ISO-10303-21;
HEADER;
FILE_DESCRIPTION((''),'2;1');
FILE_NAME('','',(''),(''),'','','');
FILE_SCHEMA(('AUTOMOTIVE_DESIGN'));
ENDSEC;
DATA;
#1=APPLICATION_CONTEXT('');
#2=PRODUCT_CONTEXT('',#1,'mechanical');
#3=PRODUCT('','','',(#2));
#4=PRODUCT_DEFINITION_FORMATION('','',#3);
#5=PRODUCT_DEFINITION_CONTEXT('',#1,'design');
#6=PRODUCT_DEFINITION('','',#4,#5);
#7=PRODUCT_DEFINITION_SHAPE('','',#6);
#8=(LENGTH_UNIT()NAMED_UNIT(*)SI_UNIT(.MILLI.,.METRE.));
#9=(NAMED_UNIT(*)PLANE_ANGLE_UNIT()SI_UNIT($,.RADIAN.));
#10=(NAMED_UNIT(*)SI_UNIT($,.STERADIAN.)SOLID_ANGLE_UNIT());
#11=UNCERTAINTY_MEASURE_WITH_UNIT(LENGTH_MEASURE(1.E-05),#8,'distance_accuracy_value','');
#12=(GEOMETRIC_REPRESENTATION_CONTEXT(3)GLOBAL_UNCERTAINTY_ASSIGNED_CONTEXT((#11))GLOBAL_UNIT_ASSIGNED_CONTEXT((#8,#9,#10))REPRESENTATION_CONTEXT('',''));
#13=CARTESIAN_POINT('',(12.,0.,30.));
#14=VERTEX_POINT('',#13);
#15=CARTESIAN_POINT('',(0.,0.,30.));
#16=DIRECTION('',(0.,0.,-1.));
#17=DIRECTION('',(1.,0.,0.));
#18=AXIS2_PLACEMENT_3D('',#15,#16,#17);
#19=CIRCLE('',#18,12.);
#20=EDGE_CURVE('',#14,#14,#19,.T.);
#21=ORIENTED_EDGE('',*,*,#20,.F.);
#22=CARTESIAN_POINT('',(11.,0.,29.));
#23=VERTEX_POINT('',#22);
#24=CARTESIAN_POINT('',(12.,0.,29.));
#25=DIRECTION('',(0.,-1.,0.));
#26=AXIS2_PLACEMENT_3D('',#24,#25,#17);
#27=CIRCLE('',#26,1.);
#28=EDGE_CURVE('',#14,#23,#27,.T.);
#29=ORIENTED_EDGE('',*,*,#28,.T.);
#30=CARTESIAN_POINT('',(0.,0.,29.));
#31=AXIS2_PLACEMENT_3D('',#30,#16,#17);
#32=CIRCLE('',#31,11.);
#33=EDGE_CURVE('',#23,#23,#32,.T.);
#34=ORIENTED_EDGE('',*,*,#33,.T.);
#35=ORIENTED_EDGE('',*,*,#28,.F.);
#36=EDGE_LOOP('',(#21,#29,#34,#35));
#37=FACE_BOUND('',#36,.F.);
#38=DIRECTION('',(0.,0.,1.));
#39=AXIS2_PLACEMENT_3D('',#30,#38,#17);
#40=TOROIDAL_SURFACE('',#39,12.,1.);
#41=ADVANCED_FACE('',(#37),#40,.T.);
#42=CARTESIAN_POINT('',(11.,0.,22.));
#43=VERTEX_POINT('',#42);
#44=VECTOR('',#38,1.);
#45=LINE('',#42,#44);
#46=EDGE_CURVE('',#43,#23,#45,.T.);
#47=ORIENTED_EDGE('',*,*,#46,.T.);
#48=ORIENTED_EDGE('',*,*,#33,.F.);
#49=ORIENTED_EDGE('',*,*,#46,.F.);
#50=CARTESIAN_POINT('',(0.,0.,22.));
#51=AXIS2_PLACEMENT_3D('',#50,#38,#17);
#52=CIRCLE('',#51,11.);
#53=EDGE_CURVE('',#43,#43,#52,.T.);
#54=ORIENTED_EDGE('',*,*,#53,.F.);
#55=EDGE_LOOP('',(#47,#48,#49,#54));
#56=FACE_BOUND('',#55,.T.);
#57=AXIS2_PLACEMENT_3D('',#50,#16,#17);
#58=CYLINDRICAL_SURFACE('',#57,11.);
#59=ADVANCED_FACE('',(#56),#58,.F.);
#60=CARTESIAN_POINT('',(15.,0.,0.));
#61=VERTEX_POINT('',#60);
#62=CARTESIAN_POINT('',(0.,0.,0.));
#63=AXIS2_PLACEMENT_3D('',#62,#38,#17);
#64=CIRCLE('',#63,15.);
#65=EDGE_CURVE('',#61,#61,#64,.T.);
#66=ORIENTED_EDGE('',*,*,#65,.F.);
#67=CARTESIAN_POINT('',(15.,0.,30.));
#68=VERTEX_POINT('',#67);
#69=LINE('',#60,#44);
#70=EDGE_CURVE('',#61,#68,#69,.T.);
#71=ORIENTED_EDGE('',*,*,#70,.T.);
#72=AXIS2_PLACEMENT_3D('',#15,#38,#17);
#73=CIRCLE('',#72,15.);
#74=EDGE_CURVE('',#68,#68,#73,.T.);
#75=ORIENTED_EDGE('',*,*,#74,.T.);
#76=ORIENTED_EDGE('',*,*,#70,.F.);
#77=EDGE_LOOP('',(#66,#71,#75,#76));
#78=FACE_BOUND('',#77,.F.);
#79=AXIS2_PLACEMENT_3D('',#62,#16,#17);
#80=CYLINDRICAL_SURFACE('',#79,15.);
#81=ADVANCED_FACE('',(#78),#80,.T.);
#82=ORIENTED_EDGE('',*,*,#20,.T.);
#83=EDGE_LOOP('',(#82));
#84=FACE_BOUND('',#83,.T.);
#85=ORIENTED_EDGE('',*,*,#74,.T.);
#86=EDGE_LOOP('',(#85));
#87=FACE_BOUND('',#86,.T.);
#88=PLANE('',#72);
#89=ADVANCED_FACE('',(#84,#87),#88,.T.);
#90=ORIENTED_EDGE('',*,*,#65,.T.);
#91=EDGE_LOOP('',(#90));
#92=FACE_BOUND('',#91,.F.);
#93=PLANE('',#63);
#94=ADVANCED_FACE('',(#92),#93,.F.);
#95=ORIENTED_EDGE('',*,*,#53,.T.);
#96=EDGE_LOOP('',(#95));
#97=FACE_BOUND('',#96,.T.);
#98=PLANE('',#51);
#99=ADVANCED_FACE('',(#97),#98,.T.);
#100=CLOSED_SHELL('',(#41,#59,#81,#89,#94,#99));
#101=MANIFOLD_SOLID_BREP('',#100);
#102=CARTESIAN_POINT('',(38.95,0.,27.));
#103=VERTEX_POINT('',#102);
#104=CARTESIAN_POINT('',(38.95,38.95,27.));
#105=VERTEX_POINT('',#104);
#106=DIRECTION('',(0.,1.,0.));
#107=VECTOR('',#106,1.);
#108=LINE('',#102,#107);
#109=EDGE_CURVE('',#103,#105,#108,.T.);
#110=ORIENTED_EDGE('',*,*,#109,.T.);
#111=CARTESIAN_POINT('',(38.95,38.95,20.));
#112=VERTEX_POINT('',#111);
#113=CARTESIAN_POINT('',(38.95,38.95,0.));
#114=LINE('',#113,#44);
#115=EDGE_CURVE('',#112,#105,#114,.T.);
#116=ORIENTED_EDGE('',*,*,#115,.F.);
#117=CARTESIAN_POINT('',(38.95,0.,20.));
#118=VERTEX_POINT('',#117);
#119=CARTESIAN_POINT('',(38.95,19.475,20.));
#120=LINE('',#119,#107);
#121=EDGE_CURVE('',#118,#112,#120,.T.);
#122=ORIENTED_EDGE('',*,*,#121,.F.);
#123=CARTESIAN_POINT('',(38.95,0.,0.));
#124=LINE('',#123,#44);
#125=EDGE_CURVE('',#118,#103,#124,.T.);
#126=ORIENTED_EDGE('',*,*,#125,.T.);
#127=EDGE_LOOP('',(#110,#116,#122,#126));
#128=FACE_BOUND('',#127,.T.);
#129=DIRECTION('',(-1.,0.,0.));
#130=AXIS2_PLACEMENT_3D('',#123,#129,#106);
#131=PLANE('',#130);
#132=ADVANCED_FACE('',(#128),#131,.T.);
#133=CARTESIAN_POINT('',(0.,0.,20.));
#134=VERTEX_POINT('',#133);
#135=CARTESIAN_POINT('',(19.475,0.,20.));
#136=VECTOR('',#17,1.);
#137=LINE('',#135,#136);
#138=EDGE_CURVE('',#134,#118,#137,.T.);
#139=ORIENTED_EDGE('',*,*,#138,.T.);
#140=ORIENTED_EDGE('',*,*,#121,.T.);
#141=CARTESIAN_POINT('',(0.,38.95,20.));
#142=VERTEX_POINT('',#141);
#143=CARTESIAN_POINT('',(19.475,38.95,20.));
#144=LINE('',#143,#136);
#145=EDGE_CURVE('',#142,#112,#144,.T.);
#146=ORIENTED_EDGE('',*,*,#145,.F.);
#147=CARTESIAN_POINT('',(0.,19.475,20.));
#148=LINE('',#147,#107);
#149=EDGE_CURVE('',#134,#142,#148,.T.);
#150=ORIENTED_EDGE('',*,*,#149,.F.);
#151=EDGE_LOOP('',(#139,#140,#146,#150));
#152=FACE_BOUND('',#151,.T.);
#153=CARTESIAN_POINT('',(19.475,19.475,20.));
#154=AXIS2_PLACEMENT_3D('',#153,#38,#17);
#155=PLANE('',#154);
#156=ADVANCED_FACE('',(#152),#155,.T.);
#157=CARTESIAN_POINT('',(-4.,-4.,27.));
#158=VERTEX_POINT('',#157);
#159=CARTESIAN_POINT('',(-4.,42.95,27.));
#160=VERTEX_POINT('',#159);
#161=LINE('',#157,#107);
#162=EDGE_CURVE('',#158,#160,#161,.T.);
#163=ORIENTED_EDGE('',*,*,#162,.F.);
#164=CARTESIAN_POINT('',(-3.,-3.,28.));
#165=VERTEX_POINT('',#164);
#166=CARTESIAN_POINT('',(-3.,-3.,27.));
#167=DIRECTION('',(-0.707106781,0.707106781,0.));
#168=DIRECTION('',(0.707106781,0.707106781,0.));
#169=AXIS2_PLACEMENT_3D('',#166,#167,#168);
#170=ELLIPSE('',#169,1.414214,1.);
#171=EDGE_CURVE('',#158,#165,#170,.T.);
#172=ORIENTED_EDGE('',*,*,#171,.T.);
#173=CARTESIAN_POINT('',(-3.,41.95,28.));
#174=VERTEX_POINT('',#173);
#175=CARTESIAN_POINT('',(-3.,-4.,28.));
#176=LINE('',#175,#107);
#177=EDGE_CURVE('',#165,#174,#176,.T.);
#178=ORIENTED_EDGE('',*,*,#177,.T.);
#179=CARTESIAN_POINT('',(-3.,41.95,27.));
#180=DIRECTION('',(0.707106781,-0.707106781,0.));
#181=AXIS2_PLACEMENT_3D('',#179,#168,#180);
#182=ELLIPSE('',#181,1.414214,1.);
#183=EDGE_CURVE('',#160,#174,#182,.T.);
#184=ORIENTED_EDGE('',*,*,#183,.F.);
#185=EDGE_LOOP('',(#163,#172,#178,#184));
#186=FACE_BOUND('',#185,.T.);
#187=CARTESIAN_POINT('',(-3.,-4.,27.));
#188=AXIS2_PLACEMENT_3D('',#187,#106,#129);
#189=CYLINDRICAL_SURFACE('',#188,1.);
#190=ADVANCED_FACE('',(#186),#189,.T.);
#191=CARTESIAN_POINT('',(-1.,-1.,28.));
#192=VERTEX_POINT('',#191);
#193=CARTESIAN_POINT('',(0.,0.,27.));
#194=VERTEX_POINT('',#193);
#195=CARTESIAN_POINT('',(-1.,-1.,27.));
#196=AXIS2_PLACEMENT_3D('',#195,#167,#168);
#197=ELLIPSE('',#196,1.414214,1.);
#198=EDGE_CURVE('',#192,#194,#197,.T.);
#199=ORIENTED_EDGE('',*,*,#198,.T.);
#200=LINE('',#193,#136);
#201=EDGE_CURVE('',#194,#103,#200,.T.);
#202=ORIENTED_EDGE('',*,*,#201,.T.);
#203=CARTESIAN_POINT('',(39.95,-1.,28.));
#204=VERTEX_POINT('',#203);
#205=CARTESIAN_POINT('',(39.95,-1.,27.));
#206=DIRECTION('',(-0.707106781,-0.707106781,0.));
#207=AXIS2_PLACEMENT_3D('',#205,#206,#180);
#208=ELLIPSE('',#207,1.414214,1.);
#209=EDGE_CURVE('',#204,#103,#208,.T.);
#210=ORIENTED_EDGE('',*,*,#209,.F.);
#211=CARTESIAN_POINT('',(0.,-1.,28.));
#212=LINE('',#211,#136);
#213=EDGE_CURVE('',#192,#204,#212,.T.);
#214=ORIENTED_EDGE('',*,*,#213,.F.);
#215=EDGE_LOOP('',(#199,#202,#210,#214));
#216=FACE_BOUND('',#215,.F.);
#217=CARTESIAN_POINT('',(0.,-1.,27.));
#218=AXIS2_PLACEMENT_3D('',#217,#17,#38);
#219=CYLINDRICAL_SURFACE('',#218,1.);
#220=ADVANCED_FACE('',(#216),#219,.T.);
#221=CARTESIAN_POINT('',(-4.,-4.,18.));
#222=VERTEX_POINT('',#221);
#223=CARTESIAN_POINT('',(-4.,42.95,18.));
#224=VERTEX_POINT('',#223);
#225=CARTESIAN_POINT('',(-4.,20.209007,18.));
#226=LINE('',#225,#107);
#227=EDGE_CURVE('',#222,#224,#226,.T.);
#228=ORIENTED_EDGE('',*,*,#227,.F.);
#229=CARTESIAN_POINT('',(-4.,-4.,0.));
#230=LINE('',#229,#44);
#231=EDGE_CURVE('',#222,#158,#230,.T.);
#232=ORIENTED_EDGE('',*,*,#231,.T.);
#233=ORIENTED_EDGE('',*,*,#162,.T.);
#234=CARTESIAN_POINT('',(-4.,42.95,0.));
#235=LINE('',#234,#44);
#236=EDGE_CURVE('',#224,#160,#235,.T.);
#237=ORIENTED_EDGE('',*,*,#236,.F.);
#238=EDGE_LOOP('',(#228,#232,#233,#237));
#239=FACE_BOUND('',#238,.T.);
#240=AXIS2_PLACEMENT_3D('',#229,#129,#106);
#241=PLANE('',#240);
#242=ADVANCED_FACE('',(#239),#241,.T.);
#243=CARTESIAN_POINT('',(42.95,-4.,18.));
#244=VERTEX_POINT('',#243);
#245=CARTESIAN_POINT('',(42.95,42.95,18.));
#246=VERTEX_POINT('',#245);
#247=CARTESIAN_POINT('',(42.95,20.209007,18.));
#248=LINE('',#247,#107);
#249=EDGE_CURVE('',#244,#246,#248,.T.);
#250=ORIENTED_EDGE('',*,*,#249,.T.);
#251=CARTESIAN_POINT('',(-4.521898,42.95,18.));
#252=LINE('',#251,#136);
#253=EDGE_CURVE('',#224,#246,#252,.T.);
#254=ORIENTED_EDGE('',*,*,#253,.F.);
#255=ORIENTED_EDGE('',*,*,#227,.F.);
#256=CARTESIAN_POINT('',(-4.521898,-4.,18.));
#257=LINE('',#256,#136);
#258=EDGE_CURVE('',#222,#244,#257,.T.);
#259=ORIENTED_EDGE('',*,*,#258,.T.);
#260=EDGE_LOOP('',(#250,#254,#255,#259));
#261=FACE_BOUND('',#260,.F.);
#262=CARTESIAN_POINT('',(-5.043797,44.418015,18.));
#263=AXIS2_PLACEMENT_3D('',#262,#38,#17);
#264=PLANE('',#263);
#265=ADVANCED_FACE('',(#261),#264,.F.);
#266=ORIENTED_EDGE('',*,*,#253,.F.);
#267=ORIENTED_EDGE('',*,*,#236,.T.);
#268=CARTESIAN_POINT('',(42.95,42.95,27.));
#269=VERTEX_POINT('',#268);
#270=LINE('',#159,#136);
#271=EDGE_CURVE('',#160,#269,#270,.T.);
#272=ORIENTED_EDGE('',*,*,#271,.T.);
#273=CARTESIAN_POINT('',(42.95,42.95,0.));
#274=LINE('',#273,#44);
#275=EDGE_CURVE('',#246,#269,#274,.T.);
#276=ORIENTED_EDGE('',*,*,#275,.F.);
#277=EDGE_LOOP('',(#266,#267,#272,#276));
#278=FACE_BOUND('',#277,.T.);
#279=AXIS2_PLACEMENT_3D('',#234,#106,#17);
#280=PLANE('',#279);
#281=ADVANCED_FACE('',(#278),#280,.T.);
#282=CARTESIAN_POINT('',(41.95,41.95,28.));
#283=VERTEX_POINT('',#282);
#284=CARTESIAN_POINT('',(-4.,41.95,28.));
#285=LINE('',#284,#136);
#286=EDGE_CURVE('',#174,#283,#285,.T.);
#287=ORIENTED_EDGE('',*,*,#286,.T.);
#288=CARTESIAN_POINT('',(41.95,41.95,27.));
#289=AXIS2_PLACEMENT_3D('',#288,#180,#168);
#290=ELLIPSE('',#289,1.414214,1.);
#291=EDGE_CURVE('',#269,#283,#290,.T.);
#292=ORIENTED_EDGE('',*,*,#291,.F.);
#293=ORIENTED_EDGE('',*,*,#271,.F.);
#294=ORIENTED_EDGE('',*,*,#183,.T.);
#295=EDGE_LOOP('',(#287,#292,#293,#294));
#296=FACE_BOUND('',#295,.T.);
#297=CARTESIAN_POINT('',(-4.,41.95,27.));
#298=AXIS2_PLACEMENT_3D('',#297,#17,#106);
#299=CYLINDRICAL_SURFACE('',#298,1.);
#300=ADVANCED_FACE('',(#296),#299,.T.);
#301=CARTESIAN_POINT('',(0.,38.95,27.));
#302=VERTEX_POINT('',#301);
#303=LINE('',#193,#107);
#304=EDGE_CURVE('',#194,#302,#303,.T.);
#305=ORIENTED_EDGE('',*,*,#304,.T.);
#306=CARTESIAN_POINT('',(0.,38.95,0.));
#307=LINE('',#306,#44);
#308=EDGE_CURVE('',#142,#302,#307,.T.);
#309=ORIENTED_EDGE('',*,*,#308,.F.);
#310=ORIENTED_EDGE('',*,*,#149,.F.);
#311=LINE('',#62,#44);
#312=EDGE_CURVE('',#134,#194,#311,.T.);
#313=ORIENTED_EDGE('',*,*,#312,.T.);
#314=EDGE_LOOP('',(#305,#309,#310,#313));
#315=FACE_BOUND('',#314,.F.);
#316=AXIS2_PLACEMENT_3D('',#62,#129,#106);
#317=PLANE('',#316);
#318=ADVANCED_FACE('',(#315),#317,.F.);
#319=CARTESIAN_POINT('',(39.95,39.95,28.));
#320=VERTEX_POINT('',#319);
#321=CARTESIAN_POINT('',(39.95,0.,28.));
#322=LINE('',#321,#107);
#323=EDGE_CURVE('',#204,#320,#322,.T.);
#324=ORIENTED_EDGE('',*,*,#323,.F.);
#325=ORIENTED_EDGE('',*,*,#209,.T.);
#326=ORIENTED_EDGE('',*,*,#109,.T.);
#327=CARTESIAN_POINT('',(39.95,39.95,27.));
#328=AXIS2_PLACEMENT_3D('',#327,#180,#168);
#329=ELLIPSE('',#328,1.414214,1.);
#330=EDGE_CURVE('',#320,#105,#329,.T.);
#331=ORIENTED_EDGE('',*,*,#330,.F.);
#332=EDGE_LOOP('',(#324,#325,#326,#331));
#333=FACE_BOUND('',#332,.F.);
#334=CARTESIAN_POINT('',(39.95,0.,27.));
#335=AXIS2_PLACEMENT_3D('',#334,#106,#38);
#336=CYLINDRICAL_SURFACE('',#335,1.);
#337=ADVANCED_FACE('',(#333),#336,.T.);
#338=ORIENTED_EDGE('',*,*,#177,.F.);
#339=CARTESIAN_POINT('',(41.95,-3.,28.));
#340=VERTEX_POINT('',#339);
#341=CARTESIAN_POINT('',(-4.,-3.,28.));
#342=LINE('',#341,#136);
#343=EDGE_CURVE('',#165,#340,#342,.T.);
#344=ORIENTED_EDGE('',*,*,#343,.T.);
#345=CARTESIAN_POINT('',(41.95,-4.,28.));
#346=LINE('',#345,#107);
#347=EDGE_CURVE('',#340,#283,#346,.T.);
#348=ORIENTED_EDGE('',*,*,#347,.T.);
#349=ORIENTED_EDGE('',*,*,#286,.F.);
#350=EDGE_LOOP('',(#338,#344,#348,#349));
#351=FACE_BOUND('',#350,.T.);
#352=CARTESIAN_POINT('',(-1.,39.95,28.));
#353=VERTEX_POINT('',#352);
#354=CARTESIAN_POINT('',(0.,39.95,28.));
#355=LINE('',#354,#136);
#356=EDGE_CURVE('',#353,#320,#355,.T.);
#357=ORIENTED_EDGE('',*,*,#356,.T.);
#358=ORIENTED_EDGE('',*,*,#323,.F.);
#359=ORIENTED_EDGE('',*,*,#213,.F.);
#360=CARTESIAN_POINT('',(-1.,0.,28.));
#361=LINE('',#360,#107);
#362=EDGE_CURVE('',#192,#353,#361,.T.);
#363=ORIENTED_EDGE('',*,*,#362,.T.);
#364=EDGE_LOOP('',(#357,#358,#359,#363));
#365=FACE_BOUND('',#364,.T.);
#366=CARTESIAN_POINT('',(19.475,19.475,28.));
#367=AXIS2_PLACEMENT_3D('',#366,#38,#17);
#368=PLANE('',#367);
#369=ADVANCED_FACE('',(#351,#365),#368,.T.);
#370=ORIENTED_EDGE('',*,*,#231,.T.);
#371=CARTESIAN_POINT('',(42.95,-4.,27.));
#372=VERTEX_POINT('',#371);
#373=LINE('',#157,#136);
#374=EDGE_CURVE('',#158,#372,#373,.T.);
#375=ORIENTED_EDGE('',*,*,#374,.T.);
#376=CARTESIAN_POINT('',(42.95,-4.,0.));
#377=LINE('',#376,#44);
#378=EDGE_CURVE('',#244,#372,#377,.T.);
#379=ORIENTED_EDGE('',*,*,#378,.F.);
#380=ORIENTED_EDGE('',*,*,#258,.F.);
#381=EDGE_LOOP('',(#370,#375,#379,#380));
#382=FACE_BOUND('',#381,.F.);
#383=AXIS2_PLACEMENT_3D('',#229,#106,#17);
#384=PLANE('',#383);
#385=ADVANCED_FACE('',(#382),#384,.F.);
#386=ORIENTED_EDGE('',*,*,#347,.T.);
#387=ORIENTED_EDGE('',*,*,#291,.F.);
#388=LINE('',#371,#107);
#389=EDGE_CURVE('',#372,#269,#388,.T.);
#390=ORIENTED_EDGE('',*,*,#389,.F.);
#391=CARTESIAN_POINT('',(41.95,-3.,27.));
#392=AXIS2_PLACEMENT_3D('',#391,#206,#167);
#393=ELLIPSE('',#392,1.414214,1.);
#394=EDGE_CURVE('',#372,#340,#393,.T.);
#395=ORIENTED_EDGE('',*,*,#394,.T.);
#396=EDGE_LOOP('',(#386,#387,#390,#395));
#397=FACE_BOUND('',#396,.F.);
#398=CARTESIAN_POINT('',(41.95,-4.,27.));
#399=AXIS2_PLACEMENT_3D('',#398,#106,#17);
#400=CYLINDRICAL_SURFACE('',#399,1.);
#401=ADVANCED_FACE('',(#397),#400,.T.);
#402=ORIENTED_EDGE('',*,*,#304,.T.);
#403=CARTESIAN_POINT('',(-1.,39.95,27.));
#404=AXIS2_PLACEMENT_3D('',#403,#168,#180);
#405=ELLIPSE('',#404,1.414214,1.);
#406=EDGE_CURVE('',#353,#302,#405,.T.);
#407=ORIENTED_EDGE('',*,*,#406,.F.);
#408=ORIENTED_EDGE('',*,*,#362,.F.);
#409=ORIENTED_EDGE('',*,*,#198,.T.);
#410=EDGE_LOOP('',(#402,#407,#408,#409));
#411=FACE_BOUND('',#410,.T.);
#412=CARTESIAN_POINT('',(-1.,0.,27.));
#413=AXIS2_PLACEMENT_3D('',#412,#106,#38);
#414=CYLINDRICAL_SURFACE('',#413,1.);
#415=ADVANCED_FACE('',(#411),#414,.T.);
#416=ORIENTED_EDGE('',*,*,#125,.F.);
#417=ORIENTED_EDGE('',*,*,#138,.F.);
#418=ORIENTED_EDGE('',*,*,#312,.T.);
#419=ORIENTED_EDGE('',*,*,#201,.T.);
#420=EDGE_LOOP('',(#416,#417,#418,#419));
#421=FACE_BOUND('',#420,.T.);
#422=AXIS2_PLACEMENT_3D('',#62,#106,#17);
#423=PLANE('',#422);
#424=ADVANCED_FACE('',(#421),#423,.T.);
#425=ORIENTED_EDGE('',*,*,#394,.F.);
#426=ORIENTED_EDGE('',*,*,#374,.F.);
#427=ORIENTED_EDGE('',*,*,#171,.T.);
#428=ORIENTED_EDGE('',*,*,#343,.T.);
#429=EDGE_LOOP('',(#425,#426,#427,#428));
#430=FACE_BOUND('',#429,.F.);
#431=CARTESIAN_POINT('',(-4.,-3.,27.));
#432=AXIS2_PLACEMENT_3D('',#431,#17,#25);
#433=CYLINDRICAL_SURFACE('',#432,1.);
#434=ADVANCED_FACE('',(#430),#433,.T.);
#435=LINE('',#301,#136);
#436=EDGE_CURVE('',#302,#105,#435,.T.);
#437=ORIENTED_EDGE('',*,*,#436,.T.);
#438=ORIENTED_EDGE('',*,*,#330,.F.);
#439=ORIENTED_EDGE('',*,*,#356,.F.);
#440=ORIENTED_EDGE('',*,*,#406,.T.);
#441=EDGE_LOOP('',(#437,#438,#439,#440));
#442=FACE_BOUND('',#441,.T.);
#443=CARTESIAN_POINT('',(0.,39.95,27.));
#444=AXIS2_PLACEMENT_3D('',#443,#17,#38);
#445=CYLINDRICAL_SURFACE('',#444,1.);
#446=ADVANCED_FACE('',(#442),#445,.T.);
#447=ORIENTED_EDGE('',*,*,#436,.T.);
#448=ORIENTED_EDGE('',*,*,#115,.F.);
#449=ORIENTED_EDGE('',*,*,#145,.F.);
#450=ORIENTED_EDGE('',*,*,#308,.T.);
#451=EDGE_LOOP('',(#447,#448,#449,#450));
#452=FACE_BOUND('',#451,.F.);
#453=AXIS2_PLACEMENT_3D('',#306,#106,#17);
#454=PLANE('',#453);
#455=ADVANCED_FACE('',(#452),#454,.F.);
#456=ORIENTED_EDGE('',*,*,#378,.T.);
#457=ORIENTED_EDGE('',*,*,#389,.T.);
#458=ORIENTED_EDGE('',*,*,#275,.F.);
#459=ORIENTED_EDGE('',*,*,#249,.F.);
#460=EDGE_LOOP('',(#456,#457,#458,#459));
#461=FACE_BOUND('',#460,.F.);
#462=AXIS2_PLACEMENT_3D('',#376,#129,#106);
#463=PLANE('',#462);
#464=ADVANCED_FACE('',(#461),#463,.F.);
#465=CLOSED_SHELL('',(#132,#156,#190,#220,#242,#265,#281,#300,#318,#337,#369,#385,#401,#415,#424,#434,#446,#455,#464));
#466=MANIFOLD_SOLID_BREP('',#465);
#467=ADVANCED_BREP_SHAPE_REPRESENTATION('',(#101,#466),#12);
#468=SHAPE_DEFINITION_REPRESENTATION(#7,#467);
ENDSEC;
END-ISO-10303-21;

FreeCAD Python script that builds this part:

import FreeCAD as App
import Part
import Sketcher


def edges_at(feature, points):
    """Names of the edges that pass closest to the given points."""
    edges = feature.Shape.Edges
    near = lambda p: min(range(len(edges)), key=lambda i: edges[i].distToShape(Part.Vertex(*p))[0])
    return sorted({f"Edge{near(p) + 1}" for p in points})


def add_polygon(sketch, points):
    """Adds a closed chain of lines whose ends are joined by coincident constraints."""
    first, n = sketch.GeometryCount, len(points)
    for a, b in zip(points, points[1:] + points[:1]):
        sketch.addGeometry(Part.LineSegment(App.Vector(*a, 0), App.Vector(*b, 0)), False)
    for i in range(n):
        sketch.addConstraint(Sketcher.Constraint("Coincident", first + i, 2, first + (i + 1) % n, 1))

doc = App.newDocument("Part")
body = doc.addObject("PartDesign::Body", "Body")

# Sketch on XY plane
sketch1 = body.newObject("Sketcher::SketchObject", "Sketch")
sketch1.AttachmentSupport = (doc.getObject("XY_Plane"), [""])
sketch1.MapMode = "FlatFace"
add_polygon(sketch1, [(-4, 43), (-4, -4), (43, -4), (43, 43)])  # lines 0-3
add_polygon(sketch1, [(39, 0), (0, 0), (0, 39), (39, 39)])  # lines 4-7
sketch1.addConstraint([
    Sketcher.Constraint("Vertical", 0),
    Sketcher.Constraint("Horizontal", 1),
    Sketcher.Constraint("Vertical", 2),
    Sketcher.Constraint("Horizontal", 3),
    Sketcher.Constraint("Horizontal", 4),
    Sketcher.Constraint("Vertical", 5),
    Sketcher.Constraint("Horizontal", 6),
    Sketcher.Constraint("Vertical", 7),
    Sketcher.Constraint("Coincident", 4, 2, -1, 1),
    Sketcher.Constraint("Equal", 3, 0),
    Sketcher.Constraint("Equal", 6, 5),
    Sketcher.Constraint("DistanceX", 0, 2, -1, 1, 4.0),
    Sketcher.Constraint("DistanceY", 0, 2, -1, 1, 4.0),
    Sketcher.Constraint("DistanceY", 5, 2, 3, 2, 4.0),
    Sketcher.Constraint("DistanceX", 1, 1, 1, 2, 46.95),
])
pad1 = body.newObject("PartDesign::Pad", "Pad")
pad1.Profile = sketch1
pad1.Length = 28

# Sketch on XY plane
sketch2 = body.newObject("Sketcher::SketchObject", "Sketch001")
sketch2.AttachmentSupport = (doc.getObject("XY_Plane"), [""])
sketch2.MapMode = "FlatFace"
add_polygon(sketch2, [(0, 39), (0, 0), (39, 0), (39, 39)])  # lines 0-3
sketch2.addConstraint([
    Sketcher.Constraint("Vertical", 0),
    Sketcher.Constraint("Horizontal", 1),
    Sketcher.Constraint("Vertical", 2),
    Sketcher.Constraint("Horizontal", 3),
    Sketcher.Constraint("Coincident", 0, 2, -1, 1),
    Sketcher.Constraint("Equal", 3, 0),
    Sketcher.Constraint("DistanceX", 1, 1, 1, 2, 38.95),
])
pad2 = body.newObject("PartDesign::Pad", "Pad001")
pad2.Profile = sketch2
pad2.Length = 20
doc.recompute()

fillet = body.newObject("PartDesign::Fillet", "Fillet")
fillet.Base = (pad2, edges_at(pad2, [
    (19.475, 42.95, 28),
    (42.95, 19.475, 28),
    (19.475, -4, 28),
    (-4, 19.475, 28),
    (19.475, 0, 28),
    (38.95, 19.475, 28),
    (19.475, 38.95, 28),
    (0, 19.475, 28),
]))
fillet.Radius = 1

# Sketch on XY plane
sketch3 = body.newObject("Sketcher::SketchObject", "Sketch002")
sketch3.AttachmentSupport = (doc.getObject("XY_Plane"), [""])
sketch3.MapMode = "FlatFace"
sketch3.addGeometry(Part.Circle(App.Vector(-5, 44, 0), App.Vector(0, 0, 1), 74), False)
sketch3.addConstraint([
    Sketcher.Constraint("Diameter", 0, 148.6856),
    Sketcher.Constraint("DistanceX", 0, 3, -1, 1, 5.043797),
    Sketcher.Constraint("DistanceY", -1, 1, 0, 3, 44.418015),
])
pocket1 = body.newObject("PartDesign::Pocket", "Pocket")
pocket1.Profile = sketch3
pocket1.Length = 18
pocket1.Reversed = True
body2 = doc.addObject("PartDesign::Body", "Body001")

# Sketch on XY plane
sketch4 = body2.newObject("Sketcher::SketchObject", "Sketch003")
sketch4.AttachmentSupport = (doc.getObject("XY_Plane001"), [""])
sketch4.MapMode = "FlatFace"
sketch4.addGeometry(Part.Circle(App.Vector(0, 0, 0), App.Vector(0, 0, 1), 15), False)
sketch4.addConstraint([
    Sketcher.Constraint("Coincident", 0, 3, -1, 1),
    Sketcher.Constraint("Diameter", 0, 30.0),
])
pad3 = body2.newObject("PartDesign::Pad", "Pad002")
pad3.Profile = sketch4
pad3.Length = 30

# Sketch on XY plane
sketch5 = body2.newObject("Sketcher::SketchObject", "Sketch004")
sketch5.AttachmentSupport = (doc.getObject("XY_Plane001"), [""])
sketch5.MapMode = "FlatFace"
sketch5.AttachmentOffset = App.Placement(App.Vector(0, 0, 22), App.Rotation())
sketch5.addGeometry(Part.Circle(App.Vector(0, 0, 0), App.Vector(0, 0, 1), 11), False)
sketch5.addConstraint([
    Sketcher.Constraint("Coincident", 0, 3, -1, 1),
    Sketcher.Constraint("Diameter", 0, 22.0),
])
pocket2 = body2.newObject("PartDesign::Pocket", "Pocket001")
pocket2.Profile = sketch5
pocket2.Type = "ThroughAll"
pocket2.Reversed = True
doc.recompute()

fillet2 = body2.newObject("PartDesign::Fillet", "Fillet001")
fillet2.Base = (pocket2, edges_at(pocket2, [(-11, 0, 30)]))
fillet2.Radius = 1

doc.recompute()
